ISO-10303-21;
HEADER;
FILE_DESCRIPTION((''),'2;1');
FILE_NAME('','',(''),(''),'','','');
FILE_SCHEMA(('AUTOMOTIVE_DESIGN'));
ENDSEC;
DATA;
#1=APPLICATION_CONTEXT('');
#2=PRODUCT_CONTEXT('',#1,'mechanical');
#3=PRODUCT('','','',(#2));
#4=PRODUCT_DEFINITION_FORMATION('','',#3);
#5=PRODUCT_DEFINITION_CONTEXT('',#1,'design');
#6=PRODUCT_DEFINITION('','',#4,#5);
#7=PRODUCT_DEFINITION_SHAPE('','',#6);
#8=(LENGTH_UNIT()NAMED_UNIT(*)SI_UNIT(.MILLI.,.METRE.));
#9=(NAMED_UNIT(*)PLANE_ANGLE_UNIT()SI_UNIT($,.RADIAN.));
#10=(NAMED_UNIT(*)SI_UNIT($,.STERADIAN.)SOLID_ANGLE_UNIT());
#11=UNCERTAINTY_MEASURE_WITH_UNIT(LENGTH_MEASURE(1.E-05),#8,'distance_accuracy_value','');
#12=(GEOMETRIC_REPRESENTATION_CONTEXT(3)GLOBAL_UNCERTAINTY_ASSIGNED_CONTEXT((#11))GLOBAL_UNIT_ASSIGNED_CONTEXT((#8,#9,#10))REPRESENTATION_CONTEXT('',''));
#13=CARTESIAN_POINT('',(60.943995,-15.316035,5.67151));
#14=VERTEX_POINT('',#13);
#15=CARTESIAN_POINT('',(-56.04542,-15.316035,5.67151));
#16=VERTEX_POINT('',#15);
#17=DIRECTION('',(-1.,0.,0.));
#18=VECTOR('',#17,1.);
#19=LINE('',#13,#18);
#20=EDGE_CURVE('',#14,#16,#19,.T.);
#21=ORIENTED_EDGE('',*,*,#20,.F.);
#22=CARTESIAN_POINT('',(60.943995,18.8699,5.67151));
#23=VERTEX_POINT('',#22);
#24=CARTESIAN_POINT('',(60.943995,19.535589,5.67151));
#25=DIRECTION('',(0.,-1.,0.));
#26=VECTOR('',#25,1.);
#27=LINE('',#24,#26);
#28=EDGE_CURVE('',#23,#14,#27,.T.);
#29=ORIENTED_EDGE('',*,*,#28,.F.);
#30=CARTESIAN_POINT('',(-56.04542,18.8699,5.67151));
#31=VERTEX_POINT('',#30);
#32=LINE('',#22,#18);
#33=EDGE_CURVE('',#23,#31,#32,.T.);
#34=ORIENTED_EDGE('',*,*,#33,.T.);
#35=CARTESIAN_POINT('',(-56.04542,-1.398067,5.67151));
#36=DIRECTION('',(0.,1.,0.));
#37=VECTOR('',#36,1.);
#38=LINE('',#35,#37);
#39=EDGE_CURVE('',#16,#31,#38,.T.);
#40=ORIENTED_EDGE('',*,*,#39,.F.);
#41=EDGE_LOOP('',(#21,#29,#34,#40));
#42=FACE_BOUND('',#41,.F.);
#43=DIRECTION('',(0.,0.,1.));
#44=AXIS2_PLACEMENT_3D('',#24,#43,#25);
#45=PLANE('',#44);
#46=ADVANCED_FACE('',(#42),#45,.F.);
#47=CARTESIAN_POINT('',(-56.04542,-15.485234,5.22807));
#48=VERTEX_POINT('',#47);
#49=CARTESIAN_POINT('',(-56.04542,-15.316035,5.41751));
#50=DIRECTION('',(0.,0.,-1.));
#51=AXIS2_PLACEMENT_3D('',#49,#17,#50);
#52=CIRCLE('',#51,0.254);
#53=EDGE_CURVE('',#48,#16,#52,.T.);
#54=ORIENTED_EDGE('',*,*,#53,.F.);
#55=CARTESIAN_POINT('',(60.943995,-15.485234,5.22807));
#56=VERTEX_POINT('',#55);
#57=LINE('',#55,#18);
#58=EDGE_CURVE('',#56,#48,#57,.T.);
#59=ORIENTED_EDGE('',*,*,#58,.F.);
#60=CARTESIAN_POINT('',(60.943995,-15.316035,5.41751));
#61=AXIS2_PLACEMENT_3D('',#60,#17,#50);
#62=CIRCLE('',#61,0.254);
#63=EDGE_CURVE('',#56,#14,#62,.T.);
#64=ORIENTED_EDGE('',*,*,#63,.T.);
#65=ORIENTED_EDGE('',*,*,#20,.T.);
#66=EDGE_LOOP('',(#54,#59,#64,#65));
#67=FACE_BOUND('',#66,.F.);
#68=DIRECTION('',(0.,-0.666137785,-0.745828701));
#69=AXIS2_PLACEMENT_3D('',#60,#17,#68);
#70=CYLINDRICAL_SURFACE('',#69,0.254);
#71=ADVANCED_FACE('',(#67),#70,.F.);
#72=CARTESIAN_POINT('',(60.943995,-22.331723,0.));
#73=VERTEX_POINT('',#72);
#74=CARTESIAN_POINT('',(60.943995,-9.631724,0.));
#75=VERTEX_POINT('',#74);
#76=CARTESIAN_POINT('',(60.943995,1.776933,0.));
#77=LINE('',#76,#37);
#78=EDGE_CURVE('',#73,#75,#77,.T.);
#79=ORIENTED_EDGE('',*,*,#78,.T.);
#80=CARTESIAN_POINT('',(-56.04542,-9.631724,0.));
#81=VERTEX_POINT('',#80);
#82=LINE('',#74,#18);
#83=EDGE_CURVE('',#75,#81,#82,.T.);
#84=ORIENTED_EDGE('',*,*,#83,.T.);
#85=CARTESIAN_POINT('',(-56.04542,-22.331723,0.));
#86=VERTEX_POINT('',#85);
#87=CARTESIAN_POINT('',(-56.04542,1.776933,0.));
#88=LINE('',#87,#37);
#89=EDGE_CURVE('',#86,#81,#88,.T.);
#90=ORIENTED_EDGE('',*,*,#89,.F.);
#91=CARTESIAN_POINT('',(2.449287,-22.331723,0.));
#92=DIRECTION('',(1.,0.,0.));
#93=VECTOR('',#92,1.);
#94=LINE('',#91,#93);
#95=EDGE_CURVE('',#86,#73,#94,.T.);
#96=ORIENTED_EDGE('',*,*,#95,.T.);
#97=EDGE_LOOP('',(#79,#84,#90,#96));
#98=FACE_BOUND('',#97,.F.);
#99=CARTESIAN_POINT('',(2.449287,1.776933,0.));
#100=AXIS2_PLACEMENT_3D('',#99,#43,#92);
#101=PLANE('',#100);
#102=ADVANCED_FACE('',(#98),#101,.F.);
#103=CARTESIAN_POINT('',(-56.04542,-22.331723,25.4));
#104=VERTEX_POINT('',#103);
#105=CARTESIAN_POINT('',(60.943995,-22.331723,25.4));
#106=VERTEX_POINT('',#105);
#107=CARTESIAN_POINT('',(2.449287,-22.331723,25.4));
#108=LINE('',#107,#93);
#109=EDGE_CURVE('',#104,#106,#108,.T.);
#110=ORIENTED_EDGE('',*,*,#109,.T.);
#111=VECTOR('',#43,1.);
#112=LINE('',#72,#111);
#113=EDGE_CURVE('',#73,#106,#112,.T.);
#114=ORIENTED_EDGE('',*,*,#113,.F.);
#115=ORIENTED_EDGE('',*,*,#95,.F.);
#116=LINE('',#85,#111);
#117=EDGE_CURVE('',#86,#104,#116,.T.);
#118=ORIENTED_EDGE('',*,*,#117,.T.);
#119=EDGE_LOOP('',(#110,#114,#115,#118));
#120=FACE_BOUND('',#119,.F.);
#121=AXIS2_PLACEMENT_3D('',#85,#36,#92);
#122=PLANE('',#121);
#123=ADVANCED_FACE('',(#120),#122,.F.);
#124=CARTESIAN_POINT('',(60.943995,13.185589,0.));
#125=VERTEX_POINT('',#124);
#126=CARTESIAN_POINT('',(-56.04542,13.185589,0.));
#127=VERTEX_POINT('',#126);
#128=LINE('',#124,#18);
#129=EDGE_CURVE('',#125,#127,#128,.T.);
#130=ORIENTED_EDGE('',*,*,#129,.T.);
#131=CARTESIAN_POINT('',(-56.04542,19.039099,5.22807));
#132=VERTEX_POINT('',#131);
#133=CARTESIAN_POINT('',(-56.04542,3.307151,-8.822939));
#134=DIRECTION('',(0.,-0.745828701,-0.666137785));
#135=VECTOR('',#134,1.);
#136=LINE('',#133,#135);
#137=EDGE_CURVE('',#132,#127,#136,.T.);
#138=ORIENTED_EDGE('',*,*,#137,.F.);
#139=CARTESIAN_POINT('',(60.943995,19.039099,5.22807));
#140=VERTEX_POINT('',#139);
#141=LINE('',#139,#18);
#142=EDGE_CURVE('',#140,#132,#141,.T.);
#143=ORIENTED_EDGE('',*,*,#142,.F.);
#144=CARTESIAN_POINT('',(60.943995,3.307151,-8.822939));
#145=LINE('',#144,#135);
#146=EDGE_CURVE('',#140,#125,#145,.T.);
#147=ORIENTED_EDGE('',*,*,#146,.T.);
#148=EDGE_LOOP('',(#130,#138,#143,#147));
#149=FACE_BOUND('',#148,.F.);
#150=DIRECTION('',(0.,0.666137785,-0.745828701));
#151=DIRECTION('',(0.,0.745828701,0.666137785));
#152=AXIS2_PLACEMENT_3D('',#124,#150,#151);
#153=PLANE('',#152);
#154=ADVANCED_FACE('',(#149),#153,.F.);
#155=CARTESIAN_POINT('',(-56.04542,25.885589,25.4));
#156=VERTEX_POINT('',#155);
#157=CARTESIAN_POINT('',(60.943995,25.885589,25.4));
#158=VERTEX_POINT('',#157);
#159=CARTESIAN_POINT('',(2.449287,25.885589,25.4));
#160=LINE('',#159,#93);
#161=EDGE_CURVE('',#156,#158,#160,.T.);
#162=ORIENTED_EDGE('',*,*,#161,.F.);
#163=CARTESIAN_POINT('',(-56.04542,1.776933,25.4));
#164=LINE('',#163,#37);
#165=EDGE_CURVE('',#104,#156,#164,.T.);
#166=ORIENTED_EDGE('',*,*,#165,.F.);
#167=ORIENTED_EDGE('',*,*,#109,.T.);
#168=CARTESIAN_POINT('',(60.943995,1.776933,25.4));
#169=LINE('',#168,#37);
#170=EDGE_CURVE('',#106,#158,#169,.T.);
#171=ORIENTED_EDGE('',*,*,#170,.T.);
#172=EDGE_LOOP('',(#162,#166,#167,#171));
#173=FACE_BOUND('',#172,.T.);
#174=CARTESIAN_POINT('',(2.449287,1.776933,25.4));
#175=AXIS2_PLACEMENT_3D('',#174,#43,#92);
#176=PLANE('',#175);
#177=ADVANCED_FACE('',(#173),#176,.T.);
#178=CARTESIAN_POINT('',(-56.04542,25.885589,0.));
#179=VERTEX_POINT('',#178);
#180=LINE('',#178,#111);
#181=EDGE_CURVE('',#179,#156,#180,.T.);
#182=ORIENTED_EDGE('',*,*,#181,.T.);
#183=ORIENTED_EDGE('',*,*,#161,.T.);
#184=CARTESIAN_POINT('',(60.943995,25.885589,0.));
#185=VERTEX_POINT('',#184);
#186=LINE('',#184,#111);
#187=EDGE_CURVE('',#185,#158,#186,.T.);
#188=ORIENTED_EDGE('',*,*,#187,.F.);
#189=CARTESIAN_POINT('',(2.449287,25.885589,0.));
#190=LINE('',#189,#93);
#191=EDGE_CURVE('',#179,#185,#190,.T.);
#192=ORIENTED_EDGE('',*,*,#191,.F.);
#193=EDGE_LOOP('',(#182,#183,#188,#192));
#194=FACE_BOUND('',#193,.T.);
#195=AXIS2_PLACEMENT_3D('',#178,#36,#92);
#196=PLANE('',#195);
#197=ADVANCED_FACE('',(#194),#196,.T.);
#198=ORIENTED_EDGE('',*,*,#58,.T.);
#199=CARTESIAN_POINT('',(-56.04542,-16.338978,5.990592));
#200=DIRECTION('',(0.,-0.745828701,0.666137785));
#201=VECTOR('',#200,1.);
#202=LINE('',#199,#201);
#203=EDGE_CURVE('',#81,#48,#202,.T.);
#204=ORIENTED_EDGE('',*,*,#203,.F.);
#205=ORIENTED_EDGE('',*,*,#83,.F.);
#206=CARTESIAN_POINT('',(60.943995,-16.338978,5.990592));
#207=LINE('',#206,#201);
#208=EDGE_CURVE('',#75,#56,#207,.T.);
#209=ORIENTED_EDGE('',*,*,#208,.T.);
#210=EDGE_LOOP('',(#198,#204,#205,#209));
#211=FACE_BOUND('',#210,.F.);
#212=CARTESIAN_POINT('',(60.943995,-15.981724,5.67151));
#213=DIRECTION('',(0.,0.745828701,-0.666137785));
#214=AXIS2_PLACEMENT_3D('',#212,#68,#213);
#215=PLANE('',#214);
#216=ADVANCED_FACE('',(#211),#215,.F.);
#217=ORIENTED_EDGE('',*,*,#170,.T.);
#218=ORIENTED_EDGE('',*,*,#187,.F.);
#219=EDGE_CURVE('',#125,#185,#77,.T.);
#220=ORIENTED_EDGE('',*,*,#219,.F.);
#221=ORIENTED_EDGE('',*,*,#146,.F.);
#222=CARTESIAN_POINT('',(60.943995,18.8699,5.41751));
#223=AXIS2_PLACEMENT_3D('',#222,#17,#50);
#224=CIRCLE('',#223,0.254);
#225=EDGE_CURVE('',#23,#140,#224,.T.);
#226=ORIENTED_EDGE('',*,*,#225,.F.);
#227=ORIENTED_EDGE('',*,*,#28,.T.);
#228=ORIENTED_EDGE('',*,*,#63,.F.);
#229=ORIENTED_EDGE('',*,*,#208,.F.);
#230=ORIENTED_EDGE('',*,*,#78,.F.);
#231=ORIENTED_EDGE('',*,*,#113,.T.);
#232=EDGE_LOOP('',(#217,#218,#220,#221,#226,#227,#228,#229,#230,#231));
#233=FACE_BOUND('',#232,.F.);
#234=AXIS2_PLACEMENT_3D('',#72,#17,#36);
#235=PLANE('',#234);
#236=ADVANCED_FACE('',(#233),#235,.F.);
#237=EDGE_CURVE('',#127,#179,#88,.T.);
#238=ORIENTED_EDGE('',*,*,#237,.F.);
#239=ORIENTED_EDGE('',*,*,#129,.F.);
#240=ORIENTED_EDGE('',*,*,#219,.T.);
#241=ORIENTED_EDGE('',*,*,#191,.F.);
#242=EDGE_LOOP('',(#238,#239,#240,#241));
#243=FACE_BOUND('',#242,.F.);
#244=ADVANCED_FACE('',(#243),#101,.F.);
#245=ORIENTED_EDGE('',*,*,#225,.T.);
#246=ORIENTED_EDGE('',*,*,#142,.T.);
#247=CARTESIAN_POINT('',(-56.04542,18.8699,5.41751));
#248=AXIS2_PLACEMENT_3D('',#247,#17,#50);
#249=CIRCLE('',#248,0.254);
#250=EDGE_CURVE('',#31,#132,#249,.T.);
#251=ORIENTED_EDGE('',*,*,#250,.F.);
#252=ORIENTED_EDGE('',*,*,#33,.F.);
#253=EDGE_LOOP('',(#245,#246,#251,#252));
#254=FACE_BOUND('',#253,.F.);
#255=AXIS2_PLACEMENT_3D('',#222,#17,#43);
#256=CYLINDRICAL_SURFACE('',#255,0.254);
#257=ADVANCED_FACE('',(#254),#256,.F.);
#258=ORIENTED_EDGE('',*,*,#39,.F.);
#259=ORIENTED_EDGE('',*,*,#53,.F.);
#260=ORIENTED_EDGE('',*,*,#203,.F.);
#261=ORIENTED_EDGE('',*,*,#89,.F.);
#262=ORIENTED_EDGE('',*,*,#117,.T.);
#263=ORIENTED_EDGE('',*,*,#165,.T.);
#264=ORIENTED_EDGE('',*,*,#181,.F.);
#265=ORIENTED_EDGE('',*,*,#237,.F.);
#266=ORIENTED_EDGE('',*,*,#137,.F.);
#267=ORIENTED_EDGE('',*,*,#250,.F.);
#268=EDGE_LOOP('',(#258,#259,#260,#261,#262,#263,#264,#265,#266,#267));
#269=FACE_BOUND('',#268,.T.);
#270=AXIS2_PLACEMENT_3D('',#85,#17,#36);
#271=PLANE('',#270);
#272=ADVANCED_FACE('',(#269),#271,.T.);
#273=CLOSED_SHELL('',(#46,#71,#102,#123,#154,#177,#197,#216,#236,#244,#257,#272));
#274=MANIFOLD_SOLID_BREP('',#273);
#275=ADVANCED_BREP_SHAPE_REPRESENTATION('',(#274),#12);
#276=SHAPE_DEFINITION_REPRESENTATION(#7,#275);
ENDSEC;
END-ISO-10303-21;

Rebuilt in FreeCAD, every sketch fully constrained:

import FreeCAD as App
import Part
import Sketcher
Q = App.Units.Quantity


def edges_at(feature, points):
    """Names of the edges that pass closest to the given points."""
    edges = feature.Shape.Edges
    near = lambda p: min(range(len(edges)), key=lambda i: edges[i].distToShape(Part.Vertex(*p))[0])
    return sorted({f"Edge{near(p) + 1}" for p in points})


def add_polygon(sketch, points):
    """Adds a closed chain of lines whose ends are joined by coincident constraints."""
    first, n = sketch.GeometryCount, len(points)
    for a, b in zip(points, points[1:] + points[:1]):
        sketch.addGeometry(Part.LineSegment(App.Vector(*a, 0), App.Vector(*b, 0)), False)
    for i in range(n):
        sketch.addConstraint(Sketcher.Constraint("Coincident", first + i, 2, first + (i + 1) % n, 1))

doc = App.newDocument("Part")
body = doc.addObject("PartDesign::Body", "Body")

sketch1 = doc.addObject("Sketcher::SketchObject", "Sketch")
body.addObject(sketch1)
sketch1.AttachmentSupport = (doc.XY_Plane, [""])
sketch1.MapMode = "FlatFace"
add_polygon(sketch1, [(-56, 26), (-56, -22), (61, -22), (61, 26)])
sketch1.addConstraint([
    Sketcher.Constraint("Vertical", 0),
    Sketcher.Constraint("Horizontal", 1),
    Sketcher.Constraint("Vertical", 2),
    Sketcher.Constraint("Horizontal", 3),
    Sketcher.Constraint("DistanceX", 1, 1, 1, 2, 116.989415),
    Sketcher.Constraint("DistanceY", 0, 2, 0, 1, 48.217313),
    Sketcher.Constraint("DistanceX", 0, 2, -1, 1, 56.04542),
    Sketcher.Constraint("DistanceY", -1, 1, 2, 2, 25.885589),
])
pad1 = doc.addObject("PartDesign::Pad", "Pad")
body.addObject(pad1)
pad1.Profile = sketch1
pad1.Length = Q("1 in")

sketch2 = doc.addObject("Sketcher::SketchObject", "Sketch001")
body.addObject(sketch2)
sketch2.AttachmentSupport = (doc.YZ_Plane, [""])
sketch2.MapMode = "FlatFace"
sketch2.AttachmentOffset = App.Placement(App.Vector(0, 0, 60.943995), App.Rotation())
add_polygon(sketch2, [(-16, 6), (-10, 0), (13, 0), (20, 6)])
sketch2.addConstraint([
    Sketcher.Constraint("Horizontal", 1),
    Sketcher.Constraint("Horizontal", 3),
    Sketcher.Constraint("PointOnObject", 0, 2, -1),
    Sketcher.Constraint("Equal", 0, 2),
    Sketcher.Constraint("DistanceX", 1, 2, 2, 2, Q("0.25 in")),
    Sketcher.Constraint("Distance", 0, 8.514019),
    Sketcher.Constraint("DistanceX", 1, 1, 1, 2, 22.817313),
    Sketcher.Constraint("DistanceX", -1, 1, 1, 2, 13.185589),
])
pocket1 = doc.addObject("PartDesign::Pocket", "Pocket")
body.addObject(pocket1)
pocket1.Profile = sketch2
pocket1.Type = "ThroughAll"
doc.recompute()

fillet = doc.addObject("PartDesign::Fillet", "Fillet")
body.addObject(fillet)
fillet.Base = (pocket1, edges_at(pocket1, [(2.449, -15.982, 5.672), (2.449, 19.536, 5.672)]))
fillet.Radius = Q("0.01 in")

doc.recompute()
